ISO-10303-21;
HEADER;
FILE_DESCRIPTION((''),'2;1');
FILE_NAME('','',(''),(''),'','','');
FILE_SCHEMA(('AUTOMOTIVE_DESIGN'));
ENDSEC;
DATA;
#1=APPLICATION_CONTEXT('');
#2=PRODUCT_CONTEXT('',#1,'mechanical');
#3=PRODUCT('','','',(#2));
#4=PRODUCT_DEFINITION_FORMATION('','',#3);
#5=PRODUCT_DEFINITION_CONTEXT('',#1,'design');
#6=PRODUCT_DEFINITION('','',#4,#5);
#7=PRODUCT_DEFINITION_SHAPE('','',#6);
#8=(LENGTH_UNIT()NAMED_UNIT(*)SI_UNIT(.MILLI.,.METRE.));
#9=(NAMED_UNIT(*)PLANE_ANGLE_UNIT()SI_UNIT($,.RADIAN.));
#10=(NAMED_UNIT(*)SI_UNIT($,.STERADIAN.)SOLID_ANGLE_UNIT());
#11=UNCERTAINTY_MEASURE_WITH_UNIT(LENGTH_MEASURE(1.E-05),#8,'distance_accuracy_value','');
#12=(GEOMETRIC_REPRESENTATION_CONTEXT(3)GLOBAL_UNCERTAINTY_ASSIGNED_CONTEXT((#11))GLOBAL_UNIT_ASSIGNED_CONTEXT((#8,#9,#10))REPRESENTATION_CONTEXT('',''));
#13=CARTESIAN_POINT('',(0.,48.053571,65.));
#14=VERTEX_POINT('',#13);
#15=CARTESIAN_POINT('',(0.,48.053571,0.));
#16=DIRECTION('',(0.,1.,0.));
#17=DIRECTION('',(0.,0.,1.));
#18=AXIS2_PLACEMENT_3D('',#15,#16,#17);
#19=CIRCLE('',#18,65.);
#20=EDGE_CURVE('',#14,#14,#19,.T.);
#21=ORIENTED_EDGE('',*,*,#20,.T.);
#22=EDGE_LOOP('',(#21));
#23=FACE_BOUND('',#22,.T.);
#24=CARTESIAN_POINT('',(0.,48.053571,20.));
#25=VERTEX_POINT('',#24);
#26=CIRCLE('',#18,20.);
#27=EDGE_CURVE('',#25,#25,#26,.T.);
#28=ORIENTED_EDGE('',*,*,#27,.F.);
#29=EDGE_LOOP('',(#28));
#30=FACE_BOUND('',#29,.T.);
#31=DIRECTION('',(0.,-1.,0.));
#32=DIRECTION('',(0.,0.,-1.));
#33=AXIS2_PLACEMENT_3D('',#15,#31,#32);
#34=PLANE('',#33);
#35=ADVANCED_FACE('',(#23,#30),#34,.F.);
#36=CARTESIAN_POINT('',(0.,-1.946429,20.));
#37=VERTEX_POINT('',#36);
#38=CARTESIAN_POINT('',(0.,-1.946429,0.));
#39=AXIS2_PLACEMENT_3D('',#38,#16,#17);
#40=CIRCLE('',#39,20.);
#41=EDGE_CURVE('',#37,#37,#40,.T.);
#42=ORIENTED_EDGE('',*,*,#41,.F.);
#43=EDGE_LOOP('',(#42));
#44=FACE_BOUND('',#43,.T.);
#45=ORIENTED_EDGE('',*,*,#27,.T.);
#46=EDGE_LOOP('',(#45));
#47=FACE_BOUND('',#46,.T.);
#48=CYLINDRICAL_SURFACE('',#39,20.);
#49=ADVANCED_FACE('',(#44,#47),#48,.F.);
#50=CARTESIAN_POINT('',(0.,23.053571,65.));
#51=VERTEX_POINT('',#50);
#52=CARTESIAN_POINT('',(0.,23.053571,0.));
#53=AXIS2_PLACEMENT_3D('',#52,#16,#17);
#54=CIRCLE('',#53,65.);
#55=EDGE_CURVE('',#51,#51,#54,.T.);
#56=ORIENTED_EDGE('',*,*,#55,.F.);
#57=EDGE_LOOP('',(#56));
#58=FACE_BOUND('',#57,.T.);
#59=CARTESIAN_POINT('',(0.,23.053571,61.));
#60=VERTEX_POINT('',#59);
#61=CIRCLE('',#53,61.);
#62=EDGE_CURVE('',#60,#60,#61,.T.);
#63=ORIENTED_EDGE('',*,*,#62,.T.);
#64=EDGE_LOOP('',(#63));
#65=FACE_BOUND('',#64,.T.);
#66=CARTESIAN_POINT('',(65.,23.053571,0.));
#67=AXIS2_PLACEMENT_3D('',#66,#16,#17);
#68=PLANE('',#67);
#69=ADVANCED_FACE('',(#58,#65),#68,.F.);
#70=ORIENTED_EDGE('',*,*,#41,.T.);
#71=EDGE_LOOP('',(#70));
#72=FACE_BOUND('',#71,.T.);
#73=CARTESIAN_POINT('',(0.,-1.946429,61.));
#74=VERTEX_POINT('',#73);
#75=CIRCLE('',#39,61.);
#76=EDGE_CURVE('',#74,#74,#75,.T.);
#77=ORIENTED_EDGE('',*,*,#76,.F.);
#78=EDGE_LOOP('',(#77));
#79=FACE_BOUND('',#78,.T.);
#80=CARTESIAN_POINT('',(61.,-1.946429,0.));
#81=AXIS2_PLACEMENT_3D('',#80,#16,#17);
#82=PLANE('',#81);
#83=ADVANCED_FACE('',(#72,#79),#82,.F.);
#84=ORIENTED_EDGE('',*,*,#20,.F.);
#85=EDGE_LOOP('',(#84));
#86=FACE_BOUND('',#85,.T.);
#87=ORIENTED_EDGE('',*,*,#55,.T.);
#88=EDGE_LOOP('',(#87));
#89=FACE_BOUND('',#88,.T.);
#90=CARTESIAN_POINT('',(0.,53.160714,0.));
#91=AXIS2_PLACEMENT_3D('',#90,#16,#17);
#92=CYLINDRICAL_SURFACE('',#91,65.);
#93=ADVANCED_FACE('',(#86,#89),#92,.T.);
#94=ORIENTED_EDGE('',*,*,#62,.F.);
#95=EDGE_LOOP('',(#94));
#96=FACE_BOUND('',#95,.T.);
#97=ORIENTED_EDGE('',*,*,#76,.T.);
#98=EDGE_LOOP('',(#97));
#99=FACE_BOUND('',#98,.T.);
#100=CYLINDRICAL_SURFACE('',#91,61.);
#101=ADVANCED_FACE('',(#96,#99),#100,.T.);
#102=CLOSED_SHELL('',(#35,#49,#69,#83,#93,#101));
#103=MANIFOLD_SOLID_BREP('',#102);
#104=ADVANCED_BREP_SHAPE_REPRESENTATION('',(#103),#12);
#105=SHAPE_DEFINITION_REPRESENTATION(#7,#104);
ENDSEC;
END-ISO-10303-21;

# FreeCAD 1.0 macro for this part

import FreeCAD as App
import Part
import Sketcher
from FreeCAD import Vector
Q = App.Units.Quantity

doc = App.newDocument("Part")
body = doc.addObject("PartDesign::Body", "Body")

# Sketch on XY plane
sketch1 = body.newObject("Sketcher::SketchObject", "Sketch")
sketch1.AttachmentSupport = (doc.getObject("XY_Plane"), [""])
sketch1.MapMode = "FlatFace"
sketch1.addGeometry(Part.LineSegment(Vector(65, 48.1, 0), Vector(0, 48.1, 0)), False)
sketch1.addGeometry(Part.LineSegment(Vector(0, 48.1, 0), Vector(0, -1.9, 0)), False)
sketch1.addGeometry(Part.LineSegment(Vector(0, -1.9, 0), Vector(61, -1.9, 0)), False)
sketch1.addGeometry(Part.LineSegment(Vector(61, -1.9, 0), Vector(61, 23.1, 0)), False)
sketch1.addGeometry(Part.LineSegment(Vector(61, 23.1, 0), Vector(65, 23.1, 0)), False)
sketch1.addGeometry(Part.LineSegment(Vector(65, 23.1, 0), Vector(65, 48.1, 0)), False)
sketch1.addConstraint(Sketcher.Constraint("Coincident", 0, 2, 1, 1))
sketch1.addConstraint(Sketcher.Constraint("Coincident", 1, 2, 2, 1))
sketch1.addConstraint(Sketcher.Constraint("Coincident", 2, 2, 3, 1))
sketch1.addConstraint(Sketcher.Constraint("Coincident", 3, 2, 4, 1))
sketch1.addConstraint(Sketcher.Constraint("Coincident", 4, 2, 5, 1))
sketch1.addConstraint(Sketcher.Constraint("Coincident", 5, 2, 0, 1))
sketch1.addConstraint(Sketcher.Constraint("Horizontal", 0))
sketch1.addConstraint(Sketcher.Constraint("Vertical", 1))
sketch1.addConstraint(Sketcher.Constraint("Horizontal", 2))
sketch1.addConstraint(Sketcher.Constraint("Vertical", 3))
sketch1.addConstraint(Sketcher.Constraint("Horizontal", 4))
sketch1.addConstraint(Sketcher.Constraint("Vertical", 5))
sketch1.addConstraint(Sketcher.Constraint("PointOnObject", 0, 2, -2))
sketch1.addConstraint(Sketcher.Constraint("Equal", 3, 5))
sketch1.addConstraint(Sketcher.Constraint("DistanceX", 0, 2, 0, 1, Q("65 mm")))
sketch1.addConstraint(Sketcher.Constraint("DistanceX", 2, 1, 2, 2, Q("61 mm")))
sketch1.addConstraint(Sketcher.Constraint("DistanceY", 1, 2, 1, 1, Q("50 mm")))
sketch1.addConstraint(Sketcher.Constraint("DistanceY", -1, 1, 0, 2, Q("48.053571 mm")))
revolution = body.newObject("PartDesign::Revolution", "Revolution")
revolution.Profile = sketch1
revolution.ReferenceAxis = (sketch1, ["V_Axis"])
revolution.Angle = 360

# Sketch on XZ plane
sketch2 = body.newObject("Sketcher::SketchObject", "Sketch001")
sketch2.AttachmentSupport = (doc.getObject("XZ_Plane"), [""])
sketch2.MapMode = "FlatFace"
sketch2.AttachmentOffset = App.Placement(Vector(0, 0, -48.053571), App.Rotation())
sketch2.addGeometry(Part.Circle(Vector(0, 0, 0), Vector(0, 0, 1), 20), False)
sketch2.addConstraint(Sketcher.Constraint("Coincident", 0, 3, -1, 1))
sketch2.addConstraint(Sketcher.Constraint("Diameter", 0, Q("40 mm")))
pocket1 = body.newObject("PartDesign::Pocket", "Pocket")
pocket1.Profile = sketch2
pocket1.Type = "ThroughAll"
pocket1.Reversed = True

doc.recompute()
